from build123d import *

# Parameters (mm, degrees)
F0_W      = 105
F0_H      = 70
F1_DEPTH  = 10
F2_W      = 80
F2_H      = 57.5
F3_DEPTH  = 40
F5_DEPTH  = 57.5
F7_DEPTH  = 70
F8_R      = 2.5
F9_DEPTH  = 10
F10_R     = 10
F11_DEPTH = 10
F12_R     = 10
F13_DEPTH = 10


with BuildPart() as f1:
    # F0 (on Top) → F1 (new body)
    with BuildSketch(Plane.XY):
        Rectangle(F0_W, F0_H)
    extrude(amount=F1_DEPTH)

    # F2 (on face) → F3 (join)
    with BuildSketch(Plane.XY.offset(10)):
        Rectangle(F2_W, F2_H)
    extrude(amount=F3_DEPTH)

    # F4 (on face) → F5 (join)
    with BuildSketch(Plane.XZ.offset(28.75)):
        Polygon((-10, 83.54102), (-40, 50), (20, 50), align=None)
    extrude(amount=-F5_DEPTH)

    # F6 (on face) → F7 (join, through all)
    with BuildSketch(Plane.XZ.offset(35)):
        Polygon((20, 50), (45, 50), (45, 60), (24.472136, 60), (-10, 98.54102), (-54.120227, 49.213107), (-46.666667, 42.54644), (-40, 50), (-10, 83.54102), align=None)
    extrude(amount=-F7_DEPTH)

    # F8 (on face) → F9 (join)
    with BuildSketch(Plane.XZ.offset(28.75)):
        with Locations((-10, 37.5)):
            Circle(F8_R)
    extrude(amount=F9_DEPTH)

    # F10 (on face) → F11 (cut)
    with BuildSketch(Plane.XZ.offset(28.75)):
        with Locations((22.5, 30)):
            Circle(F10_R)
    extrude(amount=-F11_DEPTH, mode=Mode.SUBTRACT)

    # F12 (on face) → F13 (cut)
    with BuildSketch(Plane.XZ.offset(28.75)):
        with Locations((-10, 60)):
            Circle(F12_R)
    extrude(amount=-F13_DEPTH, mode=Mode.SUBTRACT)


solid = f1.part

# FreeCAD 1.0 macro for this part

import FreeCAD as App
import Part
import Sketcher

V = App.Vector


def add_polygon(sketch, points):
    """Adds a closed chain of lines whose ends are joined by coincident constraints."""
    first, n = sketch.GeometryCount, len(points)
    for a, b in zip(points, points[1:] + points[:1]):
        sketch.addGeometry(Part.LineSegment(App.Vector(*a, 0), App.Vector(*b, 0)), False)
    for i in range(n):
        sketch.addConstraint(Sketcher.Constraint("Coincident", first + i, 2, first + (i + 1) % n, 1))

doc = App.newDocument("Part")
body = doc.addObject("PartDesign::Body", "Body")

# Sketch on XY plane
sketch1 = doc.addObject("Sketcher::SketchObject", "Sketch")
body.addObject(sketch1)
sketch1.AttachmentSupport = (doc.XY_Plane, [""])
sketch1.MapMode = "FlatFace"
add_polygon(sketch1, [(-52.5, 35), (-52.5, -35), (52.5, -35), (52.5, 35)])  # lines 0-3
sketch1.addConstraint(Sketcher.Constraint("Vertical", 0))
sketch1.addConstraint(Sketcher.Constraint("Horizontal", 1))
sketch1.addConstraint(Sketcher.Constraint("Vertical", 2))
sketch1.addConstraint(Sketcher.Constraint("Horizontal", 3))
sketch1.addConstraint(Sketcher.Constraint("Symmetric", 0, 2, 2, 2, -1, 1))
sketch1.addConstraint(Sketcher.Constraint("DistanceX", 1, 1, 1, 2, 105.0))
sketch1.addConstraint(Sketcher.Constraint("DistanceY", 0, 2, 0, 1, 70.0))
pad1 = doc.addObject("PartDesign::Pad", "Pad")
body.addObject(pad1)
pad1.Profile = sketch1
pad1.Length = 10

# Sketch on XY plane
sketch2 = doc.addObject("Sketcher::SketchObject", "Sketch001")
body.addObject(sketch2)
sketch2.AttachmentSupport = (doc.XY_Plane, [""])
sketch2.MapMode = "FlatFace"
sketch2.AttachmentOffset = App.Placement(V(0, 0, 10), App.Rotation())
add_polygon(sketch2, [(-40, 28.75), (-40, -28.75), (40, -28.75), (40, 28.75)])  # lines 0-3
sketch2.addConstraint(Sketcher.Constraint("Vertical", 0))
sketch2.addConstraint(Sketcher.Constraint("Horizontal", 1))
sketch2.addConstraint(Sketcher.Constraint("Vertical", 2))
sketch2.addConstraint(Sketcher.Constraint("Horizontal", 3))
sketch2.addConstraint(Sketcher.Constraint("Symmetric", 0, 2, 2, 2, -1, 1))
sketch2.addConstraint(Sketcher.Constraint("DistanceX", 1, 1, 1, 2, 80.0))
sketch2.addConstraint(Sketcher.Constraint("DistanceY", 0, 2, 0, 1, 57.5))
pad2 = doc.addObject("PartDesign::Pad", "Pad001")
body.addObject(pad2)
pad2.Profile = sketch2
pad2.Length = 40

# Sketch on XZ plane
sketch3 = doc.addObject("Sketcher::SketchObject", "Sketch002")
body.addObject(sketch3)
sketch3.AttachmentSupport = (doc.XZ_Plane, [""])
sketch3.MapMode = "FlatFace"
sketch3.AttachmentOffset = App.Placement(V(0, 0, 28.75), App.Rotation())
add_polygon(sketch3, [(-10, 83.54102), (-40, 50), (20, 50)])  # lines 0-2
sketch3.addConstraint(Sketcher.Constraint("Horizontal", 1))
sketch3.addConstraint(Sketcher.Constraint("Equal", 0, 2))
sketch3.addConstraint(Sketcher.Constraint("DistanceX", 1, 1, 1, 2, 60.0))
sketch3.addConstraint(Sketcher.Constraint("Distance", 0, 45.0))
sketch3.addConstraint(Sketcher.Constraint("DistanceX", 0, 2, -1, 1, 40.0))
sketch3.addConstraint(Sketcher.Constraint("DistanceY", -1, 1, 0, 2, 50.0))
pad3 = doc.addObject("PartDesign::Pad", "Pad002")
body.addObject(pad3)
pad3.Profile = sketch3
pad3.Length = 57.5
pad3.Reversed = True

# Sketch on XZ plane
sketch4 = doc.addObject("Sketcher::SketchObject", "Sketch003")
body.addObject(sketch4)
sketch4.AttachmentSupport = (doc.XZ_Plane, [""])
sketch4.MapMode = "FlatFace"
sketch4.AttachmentOffset = App.Placement(V(0, 0, 35), App.Rotation())
add_polygon(sketch4, [(20, 50), (45, 50), (45, 60), (24.472136, 60), (-10, 98.54102), (-54.120227, 49.213107), (-46.666667, 42.54644), (-40, 50), (-10, 83.54102)])  # lines 0-8
sketch4.addConstraint(Sketcher.Constraint("Horizontal", 0))
sketch4.addConstraint(Sketcher.Constraint("Vertical", 1))
sketch4.addConstraint(Sketcher.Constraint("Horizontal", 2))
sketch4.addConstraint(Sketcher.Constraint("Perpendicular", 4, 5))
sketch4.addConstraint(Sketcher.Constraint("Perpendicular", 5, 6))
sketch4.addConstraint(Sketcher.Constraint("Parallel", 6, 7))
sketch4.addConstraint(Sketcher.Constraint("Parallel", 3, 8))
sketch4.addConstraint(Sketcher.Constraint("Horizontal", 0, 2, 6, 2))
sketch4.addConstraint(Sketcher.Constraint("Vertical", 3, 2, 7, 2))
sketch4.addConstraint(Sketcher.Constraint("Equal", 5, 6))
sketch4.addConstraint(Sketcher.Constraint("Equal", 7, 8))
sketch4.addConstraint(Sketcher.Constraint("DistanceX", 0, 1, 0, 2, 25.0))
sketch4.addConstraint(Sketcher.Constraint("DistanceY", 1, 1, 1, 2, 10.0))
sketch4.addConstraint(Sketcher.Constraint("Distance", 5, 10.0))
sketch4.addConstraint(Sketcher.Constraint("Distance", 7, 45.0))
sketch4.addConstraint(Sketcher.Constraint("DistanceX", -1, 1, 0, 2, 45.0))
sketch4.addConstraint(Sketcher.Constraint("DistanceY", -1, 1, 0, 2, 50.0))
sketch4.addConstraint(Sketcher.Constraint("DistanceX", 3, 2, -1, 1, 10.0))
pad4 = doc.addObject("PartDesign::Pad", "Pad003")
body.addObject(pad4)
pad4.Profile = sketch4
pad4.Length = 70
pad4.Reversed = True

# Sketch on XZ plane
sketch5 = doc.addObject("Sketcher::SketchObject", "Sketch004")
body.addObject(sketch5)
sketch5.AttachmentSupport = (doc.XZ_Plane, [""])
sketch5.MapMode = "FlatFace"
sketch5.AttachmentOffset = App.Placement(V(0, 0, 28.75), App.Rotation())
sketch5.addGeometry(Part.Circle(V(-10, 37.5, 0), V(0, 0, 1), 2.5), False)
sketch5.addConstraint(Sketcher.Constraint("Diameter", 0, 5.0))
sketch5.addConstraint(Sketcher.Constraint("DistanceX", 0, 3, -1, 1, 10.0))
sketch5.addConstraint(Sketcher.Constraint("DistanceY", -1, 1, 0, 3, 37.5))
pad5 = doc.addObject("PartDesign::Pad", "Pad004")
body.addObject(pad5)
pad5.Profile = sketch5
pad5.Length = 10

# Sketch on XZ plane
sketch6 = doc.addObject("Sketcher::SketchObject", "Sketch005")
body.addObject(sketch6)
sketch6.AttachmentSupport = (doc.XZ_Plane, [""])
sketch6.MapMode = "FlatFace"
sketch6.AttachmentOffset = App.Placement(V(0, 0, 28.75), App.Rotation())
sketch6.addGeometry(Part.Circle(V(22.5, 30, 0), V(0, 0, 1), 10), False)
sketch6.addConstraint(Sketcher.Constraint("Diameter", 0, 20.0))
sketch6.addConstraint(Sketcher.Constraint("DistanceY", -1, 1, 0, 3, 30.0))
sketch6.addConstraint(Sketcher.Constraint("DistanceX", -1, 1, 0, 3, 22.5))
pocket1 = doc.addObject("PartDesign::Pocket", "Pocket")
body.addObject(pocket1)
pocket1.Profile = sketch6
pocket1.Length = 10

# Sketch on XZ plane
sketch7 = doc.addObject("Sketcher::SketchObject", "Sketch006")
body.addObject(sketch7)
sketch7.AttachmentSupport = (doc.XZ_Plane, [""])
sketch7.MapMode = "FlatFace"
sketch7.AttachmentOffset = App.Placement(V(0, 0, 28.75), App.Rotation())
sketch7.addGeometry(Part.Circle(V(-10, 60, 0), V(0, 0, 1), 10), False)
sketch7.addConstraint(Sketcher.Constraint("Diameter", 0, 20.0))
sketch7.addConstraint(Sketcher.Constraint("DistanceX", 0, 3, -1, 1, 10.0))
sketch7.addConstraint(Sketcher.Constraint("DistanceY", -1, 1, 0, 3, 60.0))
pocket2 = doc.addObject("PartDesign::Pocket", "Pocket001")
body.addObject(pocket2)
pocket2.Profile = sketch7
pocket2.Length = 10

doc.recompute()
